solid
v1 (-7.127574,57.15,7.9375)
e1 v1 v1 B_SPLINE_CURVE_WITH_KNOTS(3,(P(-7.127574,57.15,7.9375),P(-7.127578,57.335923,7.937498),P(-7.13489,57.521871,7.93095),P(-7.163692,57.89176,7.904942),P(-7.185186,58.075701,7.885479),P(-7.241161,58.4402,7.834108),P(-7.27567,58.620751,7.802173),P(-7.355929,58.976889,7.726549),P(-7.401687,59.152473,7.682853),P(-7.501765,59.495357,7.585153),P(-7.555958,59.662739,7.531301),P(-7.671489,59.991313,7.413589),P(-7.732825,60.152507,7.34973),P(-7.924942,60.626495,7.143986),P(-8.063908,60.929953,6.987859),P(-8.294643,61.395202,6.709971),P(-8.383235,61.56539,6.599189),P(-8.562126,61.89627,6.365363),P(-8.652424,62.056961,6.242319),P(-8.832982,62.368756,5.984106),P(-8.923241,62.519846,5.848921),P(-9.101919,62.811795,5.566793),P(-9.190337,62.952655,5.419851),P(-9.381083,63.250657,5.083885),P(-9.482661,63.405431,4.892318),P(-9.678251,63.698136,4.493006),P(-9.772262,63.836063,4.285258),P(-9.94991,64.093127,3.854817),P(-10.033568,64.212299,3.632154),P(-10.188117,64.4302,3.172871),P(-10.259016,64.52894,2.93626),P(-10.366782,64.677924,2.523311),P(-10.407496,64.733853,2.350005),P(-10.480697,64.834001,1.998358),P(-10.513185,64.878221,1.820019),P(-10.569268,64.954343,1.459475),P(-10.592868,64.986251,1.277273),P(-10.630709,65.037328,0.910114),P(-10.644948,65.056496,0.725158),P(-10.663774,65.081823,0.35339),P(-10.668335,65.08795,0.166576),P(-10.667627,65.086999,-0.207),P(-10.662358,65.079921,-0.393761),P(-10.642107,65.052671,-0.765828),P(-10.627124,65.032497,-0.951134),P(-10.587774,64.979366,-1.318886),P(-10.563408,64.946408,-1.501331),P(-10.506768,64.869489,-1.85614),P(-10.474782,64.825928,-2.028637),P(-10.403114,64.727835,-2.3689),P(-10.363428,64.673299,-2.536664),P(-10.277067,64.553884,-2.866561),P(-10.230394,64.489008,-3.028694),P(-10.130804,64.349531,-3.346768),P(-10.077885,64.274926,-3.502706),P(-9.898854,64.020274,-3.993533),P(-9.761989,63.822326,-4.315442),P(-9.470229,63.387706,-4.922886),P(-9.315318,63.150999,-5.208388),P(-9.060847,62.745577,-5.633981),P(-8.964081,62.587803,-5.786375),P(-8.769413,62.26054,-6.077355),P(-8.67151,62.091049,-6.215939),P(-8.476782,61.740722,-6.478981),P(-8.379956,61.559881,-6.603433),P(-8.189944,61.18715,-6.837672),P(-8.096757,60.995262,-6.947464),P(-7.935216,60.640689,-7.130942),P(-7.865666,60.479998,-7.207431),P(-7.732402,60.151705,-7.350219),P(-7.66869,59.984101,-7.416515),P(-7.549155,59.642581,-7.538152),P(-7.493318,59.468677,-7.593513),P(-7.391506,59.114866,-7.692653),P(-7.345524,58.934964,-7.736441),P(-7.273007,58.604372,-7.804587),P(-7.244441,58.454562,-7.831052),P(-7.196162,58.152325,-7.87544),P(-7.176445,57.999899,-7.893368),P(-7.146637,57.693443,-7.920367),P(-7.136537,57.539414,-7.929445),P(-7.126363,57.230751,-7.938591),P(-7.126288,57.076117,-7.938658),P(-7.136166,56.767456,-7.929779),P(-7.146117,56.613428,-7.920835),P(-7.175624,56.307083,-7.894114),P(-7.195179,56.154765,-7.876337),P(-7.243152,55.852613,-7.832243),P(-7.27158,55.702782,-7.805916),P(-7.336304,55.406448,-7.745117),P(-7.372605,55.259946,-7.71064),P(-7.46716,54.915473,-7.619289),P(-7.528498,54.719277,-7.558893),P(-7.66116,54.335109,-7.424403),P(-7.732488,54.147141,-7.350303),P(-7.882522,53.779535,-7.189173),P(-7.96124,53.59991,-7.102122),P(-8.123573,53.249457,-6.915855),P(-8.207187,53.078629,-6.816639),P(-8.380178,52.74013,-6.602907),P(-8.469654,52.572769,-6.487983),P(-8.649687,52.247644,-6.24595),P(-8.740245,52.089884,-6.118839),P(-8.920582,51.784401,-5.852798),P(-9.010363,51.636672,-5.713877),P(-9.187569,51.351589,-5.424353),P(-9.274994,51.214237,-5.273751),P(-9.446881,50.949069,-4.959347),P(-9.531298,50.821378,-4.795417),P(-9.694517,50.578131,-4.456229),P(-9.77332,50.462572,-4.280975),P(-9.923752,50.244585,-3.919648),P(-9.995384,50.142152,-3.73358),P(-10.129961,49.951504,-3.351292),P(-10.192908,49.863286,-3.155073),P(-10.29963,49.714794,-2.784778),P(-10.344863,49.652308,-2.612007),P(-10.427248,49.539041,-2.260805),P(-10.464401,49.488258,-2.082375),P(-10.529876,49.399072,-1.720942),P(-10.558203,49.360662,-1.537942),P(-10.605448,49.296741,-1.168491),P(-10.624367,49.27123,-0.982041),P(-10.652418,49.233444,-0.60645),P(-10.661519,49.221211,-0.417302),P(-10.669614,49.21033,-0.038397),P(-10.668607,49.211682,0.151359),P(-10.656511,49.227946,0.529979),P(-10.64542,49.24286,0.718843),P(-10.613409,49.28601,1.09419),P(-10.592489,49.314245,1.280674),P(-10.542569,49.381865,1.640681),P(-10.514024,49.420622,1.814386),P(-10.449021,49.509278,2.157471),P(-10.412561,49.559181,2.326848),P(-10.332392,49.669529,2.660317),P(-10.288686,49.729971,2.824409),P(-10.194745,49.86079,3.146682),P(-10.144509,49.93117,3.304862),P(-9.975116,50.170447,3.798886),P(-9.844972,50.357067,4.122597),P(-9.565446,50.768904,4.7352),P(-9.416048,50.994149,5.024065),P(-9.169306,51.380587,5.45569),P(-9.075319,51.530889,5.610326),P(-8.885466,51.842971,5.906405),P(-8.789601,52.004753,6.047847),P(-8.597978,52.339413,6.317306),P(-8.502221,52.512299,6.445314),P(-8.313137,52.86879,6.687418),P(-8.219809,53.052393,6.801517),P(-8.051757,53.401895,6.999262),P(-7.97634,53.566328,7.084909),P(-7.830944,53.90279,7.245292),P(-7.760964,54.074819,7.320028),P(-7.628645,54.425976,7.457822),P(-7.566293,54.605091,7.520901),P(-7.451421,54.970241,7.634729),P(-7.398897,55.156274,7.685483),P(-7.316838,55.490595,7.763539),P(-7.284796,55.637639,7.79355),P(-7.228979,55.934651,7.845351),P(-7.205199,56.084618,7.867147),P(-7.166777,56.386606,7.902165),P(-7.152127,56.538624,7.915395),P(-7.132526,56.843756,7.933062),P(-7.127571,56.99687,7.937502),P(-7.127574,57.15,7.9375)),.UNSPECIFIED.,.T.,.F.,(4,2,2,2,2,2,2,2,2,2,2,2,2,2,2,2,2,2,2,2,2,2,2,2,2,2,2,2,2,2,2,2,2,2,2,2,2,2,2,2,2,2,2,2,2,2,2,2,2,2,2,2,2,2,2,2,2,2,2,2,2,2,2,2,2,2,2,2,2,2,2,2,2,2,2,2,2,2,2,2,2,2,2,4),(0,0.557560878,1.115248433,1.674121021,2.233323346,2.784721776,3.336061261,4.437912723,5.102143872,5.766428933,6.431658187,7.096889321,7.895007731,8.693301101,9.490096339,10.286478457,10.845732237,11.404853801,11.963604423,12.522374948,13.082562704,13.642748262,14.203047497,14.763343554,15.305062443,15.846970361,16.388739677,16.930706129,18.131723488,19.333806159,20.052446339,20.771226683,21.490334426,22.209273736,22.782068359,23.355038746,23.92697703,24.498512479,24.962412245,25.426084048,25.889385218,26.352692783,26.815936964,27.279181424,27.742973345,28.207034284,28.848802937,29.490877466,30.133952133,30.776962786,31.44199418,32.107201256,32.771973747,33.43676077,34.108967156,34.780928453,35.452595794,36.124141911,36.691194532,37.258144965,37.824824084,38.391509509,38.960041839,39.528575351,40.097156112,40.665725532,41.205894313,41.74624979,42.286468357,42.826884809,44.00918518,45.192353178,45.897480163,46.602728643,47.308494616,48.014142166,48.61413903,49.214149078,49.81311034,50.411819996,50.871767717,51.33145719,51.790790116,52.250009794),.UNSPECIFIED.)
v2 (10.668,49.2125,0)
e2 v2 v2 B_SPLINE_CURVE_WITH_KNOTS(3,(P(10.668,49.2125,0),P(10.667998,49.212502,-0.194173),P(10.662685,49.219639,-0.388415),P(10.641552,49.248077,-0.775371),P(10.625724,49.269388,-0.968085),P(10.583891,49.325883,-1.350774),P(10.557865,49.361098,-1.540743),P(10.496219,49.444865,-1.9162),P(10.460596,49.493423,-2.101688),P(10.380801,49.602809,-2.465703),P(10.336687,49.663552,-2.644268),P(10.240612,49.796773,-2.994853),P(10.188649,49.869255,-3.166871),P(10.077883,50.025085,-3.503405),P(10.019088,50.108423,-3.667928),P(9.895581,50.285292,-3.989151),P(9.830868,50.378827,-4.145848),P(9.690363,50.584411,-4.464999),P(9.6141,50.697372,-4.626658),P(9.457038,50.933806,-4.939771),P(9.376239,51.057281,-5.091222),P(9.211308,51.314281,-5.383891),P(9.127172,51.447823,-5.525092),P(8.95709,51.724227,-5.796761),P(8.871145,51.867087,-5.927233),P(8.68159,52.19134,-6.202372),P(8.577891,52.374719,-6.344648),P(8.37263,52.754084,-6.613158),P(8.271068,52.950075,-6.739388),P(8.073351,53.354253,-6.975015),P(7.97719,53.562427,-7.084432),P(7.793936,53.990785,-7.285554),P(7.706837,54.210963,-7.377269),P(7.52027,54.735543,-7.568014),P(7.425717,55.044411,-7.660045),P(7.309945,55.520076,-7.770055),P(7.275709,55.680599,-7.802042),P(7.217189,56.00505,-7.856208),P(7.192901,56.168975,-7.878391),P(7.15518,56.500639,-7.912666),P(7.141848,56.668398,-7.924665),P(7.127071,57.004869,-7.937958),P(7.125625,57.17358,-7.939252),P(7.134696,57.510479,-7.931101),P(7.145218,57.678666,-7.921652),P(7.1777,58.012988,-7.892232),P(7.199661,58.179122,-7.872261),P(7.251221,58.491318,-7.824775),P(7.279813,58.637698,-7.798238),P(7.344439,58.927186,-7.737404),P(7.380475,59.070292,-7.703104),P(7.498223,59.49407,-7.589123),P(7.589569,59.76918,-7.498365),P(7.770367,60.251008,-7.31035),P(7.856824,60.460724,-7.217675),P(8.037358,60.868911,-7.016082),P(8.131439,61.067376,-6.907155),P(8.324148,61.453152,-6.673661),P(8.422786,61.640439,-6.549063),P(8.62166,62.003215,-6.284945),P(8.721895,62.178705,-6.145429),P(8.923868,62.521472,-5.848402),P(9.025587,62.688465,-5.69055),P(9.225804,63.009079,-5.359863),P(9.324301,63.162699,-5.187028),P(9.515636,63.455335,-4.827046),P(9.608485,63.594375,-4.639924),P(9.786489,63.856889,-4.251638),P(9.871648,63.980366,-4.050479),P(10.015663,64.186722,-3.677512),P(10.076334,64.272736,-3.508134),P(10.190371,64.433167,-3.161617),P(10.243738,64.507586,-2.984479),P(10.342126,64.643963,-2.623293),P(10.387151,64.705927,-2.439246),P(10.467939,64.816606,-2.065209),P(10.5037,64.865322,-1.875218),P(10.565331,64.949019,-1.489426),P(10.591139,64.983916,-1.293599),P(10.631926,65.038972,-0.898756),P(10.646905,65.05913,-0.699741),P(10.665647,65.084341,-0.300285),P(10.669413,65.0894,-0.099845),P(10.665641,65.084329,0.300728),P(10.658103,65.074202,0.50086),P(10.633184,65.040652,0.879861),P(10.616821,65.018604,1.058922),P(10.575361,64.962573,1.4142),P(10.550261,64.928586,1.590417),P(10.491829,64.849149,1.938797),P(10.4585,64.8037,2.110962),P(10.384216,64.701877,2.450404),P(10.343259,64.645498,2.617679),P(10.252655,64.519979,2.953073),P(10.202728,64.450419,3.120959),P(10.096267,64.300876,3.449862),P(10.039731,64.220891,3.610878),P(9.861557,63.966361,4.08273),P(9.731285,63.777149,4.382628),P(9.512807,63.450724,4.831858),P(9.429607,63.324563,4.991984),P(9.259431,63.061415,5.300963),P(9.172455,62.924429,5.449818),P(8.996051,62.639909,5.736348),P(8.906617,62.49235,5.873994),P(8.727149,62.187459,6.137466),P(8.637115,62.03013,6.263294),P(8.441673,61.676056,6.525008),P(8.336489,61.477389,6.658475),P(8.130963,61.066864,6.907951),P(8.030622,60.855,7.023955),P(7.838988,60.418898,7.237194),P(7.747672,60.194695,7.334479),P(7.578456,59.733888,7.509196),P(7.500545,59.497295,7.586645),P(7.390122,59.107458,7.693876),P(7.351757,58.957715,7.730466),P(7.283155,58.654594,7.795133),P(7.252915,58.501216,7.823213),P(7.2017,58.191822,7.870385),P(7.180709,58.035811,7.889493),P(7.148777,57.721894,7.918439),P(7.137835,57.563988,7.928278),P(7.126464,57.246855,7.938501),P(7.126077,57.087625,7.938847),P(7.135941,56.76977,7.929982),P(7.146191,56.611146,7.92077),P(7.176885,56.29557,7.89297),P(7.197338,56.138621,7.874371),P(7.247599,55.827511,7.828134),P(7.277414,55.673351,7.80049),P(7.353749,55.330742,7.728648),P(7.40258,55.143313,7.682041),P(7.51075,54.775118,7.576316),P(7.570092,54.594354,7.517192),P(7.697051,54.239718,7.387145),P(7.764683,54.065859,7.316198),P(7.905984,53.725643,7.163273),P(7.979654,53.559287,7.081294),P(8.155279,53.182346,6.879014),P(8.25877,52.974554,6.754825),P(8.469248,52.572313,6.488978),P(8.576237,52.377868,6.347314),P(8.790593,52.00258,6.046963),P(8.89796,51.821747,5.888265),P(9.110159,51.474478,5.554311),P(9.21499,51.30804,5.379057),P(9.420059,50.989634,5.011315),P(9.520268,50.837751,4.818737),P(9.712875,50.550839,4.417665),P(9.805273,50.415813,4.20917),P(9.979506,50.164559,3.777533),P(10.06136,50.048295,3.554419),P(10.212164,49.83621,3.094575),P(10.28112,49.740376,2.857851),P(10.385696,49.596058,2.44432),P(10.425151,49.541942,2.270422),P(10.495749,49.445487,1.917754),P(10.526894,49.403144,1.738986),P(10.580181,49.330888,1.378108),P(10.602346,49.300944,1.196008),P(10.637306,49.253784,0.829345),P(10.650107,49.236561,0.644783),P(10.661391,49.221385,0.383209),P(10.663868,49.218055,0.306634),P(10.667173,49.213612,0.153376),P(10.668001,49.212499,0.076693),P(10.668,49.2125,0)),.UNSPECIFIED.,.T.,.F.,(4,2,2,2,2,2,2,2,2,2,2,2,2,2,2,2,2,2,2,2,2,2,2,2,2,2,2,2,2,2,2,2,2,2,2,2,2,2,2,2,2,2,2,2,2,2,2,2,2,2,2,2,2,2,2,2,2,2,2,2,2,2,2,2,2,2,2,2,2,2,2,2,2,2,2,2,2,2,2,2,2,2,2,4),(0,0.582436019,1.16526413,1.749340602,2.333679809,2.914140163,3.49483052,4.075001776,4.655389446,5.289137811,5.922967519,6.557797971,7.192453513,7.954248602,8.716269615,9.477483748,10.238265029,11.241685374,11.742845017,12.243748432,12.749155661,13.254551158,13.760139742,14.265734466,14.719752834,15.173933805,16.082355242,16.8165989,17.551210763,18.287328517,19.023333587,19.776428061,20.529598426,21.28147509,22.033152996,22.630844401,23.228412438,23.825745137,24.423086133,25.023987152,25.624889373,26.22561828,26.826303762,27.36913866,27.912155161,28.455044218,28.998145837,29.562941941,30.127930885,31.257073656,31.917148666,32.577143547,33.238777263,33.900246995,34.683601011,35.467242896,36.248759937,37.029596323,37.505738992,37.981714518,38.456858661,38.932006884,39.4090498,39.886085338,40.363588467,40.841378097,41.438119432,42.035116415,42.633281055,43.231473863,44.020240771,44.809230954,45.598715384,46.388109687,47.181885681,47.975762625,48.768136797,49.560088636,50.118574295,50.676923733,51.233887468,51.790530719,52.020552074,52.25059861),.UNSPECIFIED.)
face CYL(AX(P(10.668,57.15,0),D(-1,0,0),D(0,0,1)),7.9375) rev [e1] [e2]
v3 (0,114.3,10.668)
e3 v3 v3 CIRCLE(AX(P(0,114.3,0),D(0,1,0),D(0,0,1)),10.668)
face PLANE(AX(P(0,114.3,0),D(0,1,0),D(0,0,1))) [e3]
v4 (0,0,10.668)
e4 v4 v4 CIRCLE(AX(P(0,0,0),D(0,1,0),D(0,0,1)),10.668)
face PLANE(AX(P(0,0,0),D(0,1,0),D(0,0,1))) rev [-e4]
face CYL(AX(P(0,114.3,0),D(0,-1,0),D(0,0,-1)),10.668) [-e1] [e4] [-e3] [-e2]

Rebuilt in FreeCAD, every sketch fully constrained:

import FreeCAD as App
import Part
import Sketcher
from FreeCAD import Vector
Q = App.Units.Quantity

doc = App.newDocument("Part")
body = doc.addObject("PartDesign::Body", "Body")

# Sketch on XZ plane
sketch1 = doc.addObject("Sketcher::SketchObject", "Sketch")
body.addObject(sketch1)
sketch1.AttachmentSupport = (doc.XZ_Plane, [""])
sketch1.MapMode = "FlatFace"
sketch1.addGeometry(Part.Circle(Vector(0, 0, 0), Vector(0, 0, 1), 11), False)
sketch1.addConstraint([
    Sketcher.Constraint("Coincident", 0, 3, -1, 1),
    Sketcher.Constraint("Diameter", 0, Q("0.84 in")),
])
pad1 = doc.addObject("PartDesign::Pad", "Pad")
body.addObject(pad1)
pad1.Profile = sketch1
pad1.Length = Q("4.5 in")
pad1.Reversed = True

# Sketch on YZ plane
sketch2 = doc.addObject("Sketcher::SketchObject", "Sketch001")
body.addObject(sketch2)
sketch2.AttachmentSupport = (doc.YZ_Plane, [""])
sketch2.MapMode = "FlatFace"
sketch2.addGeometry(Part.Circle(Vector(57, 0, 0), Vector(0, 0, 1), 8), False)
sketch2.addConstraint([
    Sketcher.Constraint("PointOnObject", 0, 3, -1),
    Sketcher.Constraint("Diameter", 0, Q("0.625 in")),
    Sketcher.Constraint("DistanceX", -1, 1, 0, 3, Q("2.25 in")),
])
pocket1 = doc.addObject("PartDesign::Pocket", "Pocket")
body.addObject(pocket1)
pocket1.Profile = sketch2
pocket1.Type = "ThroughAll"
pocket1.Midplane = True

doc.recompute()
